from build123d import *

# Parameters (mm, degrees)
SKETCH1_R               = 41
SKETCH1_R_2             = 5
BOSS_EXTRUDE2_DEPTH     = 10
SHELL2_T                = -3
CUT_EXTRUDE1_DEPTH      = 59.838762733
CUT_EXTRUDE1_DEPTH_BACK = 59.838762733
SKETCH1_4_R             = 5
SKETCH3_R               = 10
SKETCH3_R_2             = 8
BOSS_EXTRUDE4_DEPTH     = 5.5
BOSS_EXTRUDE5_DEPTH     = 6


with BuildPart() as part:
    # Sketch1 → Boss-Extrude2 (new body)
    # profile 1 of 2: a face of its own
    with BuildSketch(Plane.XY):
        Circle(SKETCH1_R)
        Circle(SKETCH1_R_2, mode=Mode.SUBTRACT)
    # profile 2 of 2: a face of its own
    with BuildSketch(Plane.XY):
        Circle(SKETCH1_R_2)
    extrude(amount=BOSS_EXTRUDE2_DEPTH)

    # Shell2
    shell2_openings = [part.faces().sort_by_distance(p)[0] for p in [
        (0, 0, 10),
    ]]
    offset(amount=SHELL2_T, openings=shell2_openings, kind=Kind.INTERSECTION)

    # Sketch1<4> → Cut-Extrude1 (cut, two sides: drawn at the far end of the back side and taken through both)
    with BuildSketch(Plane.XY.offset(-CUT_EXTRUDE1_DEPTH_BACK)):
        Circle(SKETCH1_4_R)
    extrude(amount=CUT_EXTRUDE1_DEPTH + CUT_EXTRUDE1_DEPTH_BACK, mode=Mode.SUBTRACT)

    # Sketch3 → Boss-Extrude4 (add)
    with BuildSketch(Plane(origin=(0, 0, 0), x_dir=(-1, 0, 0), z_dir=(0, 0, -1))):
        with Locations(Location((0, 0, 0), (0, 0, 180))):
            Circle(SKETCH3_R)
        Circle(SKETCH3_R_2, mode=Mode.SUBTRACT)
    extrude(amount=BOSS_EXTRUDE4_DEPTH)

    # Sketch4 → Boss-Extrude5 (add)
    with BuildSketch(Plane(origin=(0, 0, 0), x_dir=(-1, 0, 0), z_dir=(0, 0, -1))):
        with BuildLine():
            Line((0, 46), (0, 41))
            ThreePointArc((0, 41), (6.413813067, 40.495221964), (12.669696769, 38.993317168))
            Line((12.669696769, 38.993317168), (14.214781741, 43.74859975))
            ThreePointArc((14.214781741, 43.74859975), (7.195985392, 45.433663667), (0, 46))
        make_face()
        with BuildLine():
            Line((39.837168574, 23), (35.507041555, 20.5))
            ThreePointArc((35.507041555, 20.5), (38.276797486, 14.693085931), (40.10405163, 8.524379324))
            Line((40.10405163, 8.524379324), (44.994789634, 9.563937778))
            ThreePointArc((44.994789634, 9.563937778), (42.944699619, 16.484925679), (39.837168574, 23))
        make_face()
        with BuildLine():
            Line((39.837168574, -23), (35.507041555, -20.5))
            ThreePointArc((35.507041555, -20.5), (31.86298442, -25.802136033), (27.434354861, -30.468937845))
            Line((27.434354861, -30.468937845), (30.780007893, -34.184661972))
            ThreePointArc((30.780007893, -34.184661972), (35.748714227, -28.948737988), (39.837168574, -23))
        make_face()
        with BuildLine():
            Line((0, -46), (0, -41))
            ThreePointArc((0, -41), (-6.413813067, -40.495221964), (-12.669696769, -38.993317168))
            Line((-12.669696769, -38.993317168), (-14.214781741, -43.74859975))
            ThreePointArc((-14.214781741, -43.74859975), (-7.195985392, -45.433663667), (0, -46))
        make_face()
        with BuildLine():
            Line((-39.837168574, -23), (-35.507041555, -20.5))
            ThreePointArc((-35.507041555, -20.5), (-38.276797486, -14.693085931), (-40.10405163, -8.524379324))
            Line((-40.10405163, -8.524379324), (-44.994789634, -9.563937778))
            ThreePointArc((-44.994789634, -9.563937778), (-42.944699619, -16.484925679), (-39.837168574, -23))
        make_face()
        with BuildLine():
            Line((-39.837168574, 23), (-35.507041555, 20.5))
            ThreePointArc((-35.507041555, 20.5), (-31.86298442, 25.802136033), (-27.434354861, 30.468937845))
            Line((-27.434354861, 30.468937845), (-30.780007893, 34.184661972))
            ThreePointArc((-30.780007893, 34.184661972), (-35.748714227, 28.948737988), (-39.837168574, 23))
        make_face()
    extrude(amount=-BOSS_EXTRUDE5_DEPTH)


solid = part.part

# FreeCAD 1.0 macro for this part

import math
import FreeCAD as App
import Part
import Sketcher
from FreeCAD import Vector
Q = App.Units.Quantity


def faces_at(feature, points):
    """Names of the faces that lie closest to the given points."""
    faces = feature.Shape.Faces
    near = lambda p: min(range(len(faces)), key=lambda i: faces[i].distToShape(Part.Vertex(*p))[0])
    return sorted({f"Face{near(p) + 1}" for p in points})

doc = App.newDocument("Part")
body = doc.addObject("PartDesign::Body", "Body")

sketch1 = doc.addObject("Sketcher::SketchObject", "Sketch")
body.addObject(sketch1)
sketch1.AttachmentSupport = (doc.XY_Plane, [""])
sketch1.MapMode = "FlatFace"
sketch1.addGeometry(Part.Circle(Vector(0, 0, 0), Vector(0, 0, 1), 41), False)
sketch1.addConstraint(Sketcher.Constraint("Coincident", 0, 3, -1, 1))
sketch1.addConstraint(Sketcher.Constraint("Diameter", 0, Q("82 mm")))
pad1 = doc.addObject("PartDesign::Pad", "Pad")
body.addObject(pad1)
pad1.Profile = sketch1
pad1.Length = 10
doc.recompute()

thickness = doc.addObject("PartDesign::Thickness", "Thickness")
body.addObject(thickness)
thickness.Base = (pad1, faces_at(pad1, [(0, 0, 10)]))
thickness.Value = 3
thickness.Reversed = True
thickness.Join = "Intersection"

sketch2 = doc.addObject("Sketcher::SketchObject", "Sketch001")
body.addObject(sketch2)
sketch2.AttachmentSupport = (doc.XY_Plane, [""])
sketch2.MapMode = "FlatFace"
sketch2.addGeometry(Part.Circle(Vector(0, 0, 0), Vector(0, 0, 1), 5), False)
sketch2.addConstraint(Sketcher.Constraint("Coincident", 0, 3, -1, 1))
sketch2.addConstraint(Sketcher.Constraint("Diameter", 0, Q("10 mm")))
pocket1 = doc.addObject("PartDesign::Pocket", "Pocket")
body.addObject(pocket1)
pocket1.Profile = sketch2
pocket1.Type = "ThroughAll"
pocket1.Midplane = True

sketch3 = doc.addObject("Sketcher::SketchObject", "Sketch002")
body.addObject(sketch3)
sketch3.AttachmentSupport = (doc.XY_Plane, [""])
sketch3.MapMode = "FlatFace"
sketch3.addGeometry(Part.Circle(Vector(0, 0, 0), Vector(0, 0, 1), 10), False)
sketch3.addGeometry(Part.Circle(Vector(0, 0, 0), Vector(0, 0, 1), 8), False)
sketch3.addConstraint(Sketcher.Constraint("Coincident", 0, 3, -1, 1))
sketch3.addConstraint(Sketcher.Constraint("Coincident", 1, 3, -1, 1))
sketch3.addConstraint(Sketcher.Constraint("Diameter", 0, Q("20 mm")))
sketch3.addConstraint(Sketcher.Constraint("Diameter", 1, Q("16 mm")))
pad2 = doc.addObject("PartDesign::Pad", "Pad001")
body.addObject(pad2)
pad2.Profile = sketch3
pad2.Length = 5.5
pad2.Reversed = True

sketch4 = doc.addObject("Sketcher::SketchObject", "Sketch003")
body.addObject(sketch4)
sketch4.AttachmentSupport = (doc.XY_Plane, [""])
sketch4.MapMode = "FlatFace"
sketch4.addGeometry(Part.LineSegment(Vector(0, 46, 0), Vector(0, 41, 0)), False)
sketch4.addGeometry(Part.ArcOfCircle(Part.Circle(Vector(0, 0, 0), Vector(0, 0, 1), 41), math.radians(90), math.radians(108)), False)
sketch4.addGeometry(Part.LineSegment(Vector(-12.669697, 38.993317, 0), Vector(-14.214782, 43.7486, 0)), False)
sketch4.addGeometry(Part.ArcOfCircle(Part.Circle(Vector(0, 0, 0), Vector(0, 0, 1), 46), math.radians(90), math.radians(108)), False)
sketch4.addGeometry(Part.LineSegment(Vector(-39.837169, 23, 0), Vector(-35.507042, 20.5, 0)), False)
sketch4.addGeometry(Part.ArcOfCircle(Part.Circle(Vector(0, 0, 0), Vector(0, 0, 1), 41), math.radians(150), math.radians(168)), False)
sketch4.addGeometry(Part.LineSegment(Vector(-40.104052, 8.524379, 0), Vector(-44.99479, 9.563938, 0)), False)
sketch4.addGeometry(Part.ArcOfCircle(Part.Circle(Vector(0, 0, 0), Vector(0, 0, 1), 46), math.radians(150), math.radians(168)), False)
sketch4.addGeometry(Part.LineSegment(Vector(-39.837169, -23, 0), Vector(-35.507042, -20.5, 0)), False)
sketch4.addGeometry(Part.ArcOfCircle(Part.Circle(Vector(0, 0, 0), Vector(0, 0, 1), 41), math.radians(-150), math.radians(-132)), False)
sketch4.addGeometry(Part.LineSegment(Vector(-27.434355, -30.468938, 0), Vector(-30.780008, -34.184662, 0)), False)
sketch4.addGeometry(Part.ArcOfCircle(Part.Circle(Vector(0, 0, 0), Vector(0, 0, 1), 46), math.radians(-150), math.radians(-132)), False)
sketch4.addGeometry(Part.LineSegment(Vector(0, -46, 0), Vector(0, -41, 0)), False)
sketch4.addGeometry(Part.ArcOfCircle(Part.Circle(Vector(0, 0, 0), Vector(0, 0, 1), 41), math.radians(-90), math.radians(-72)), False)
sketch4.addGeometry(Part.LineSegment(Vector(12.669697, -38.993317, 0), Vector(14.214782, -43.7486, 0)), False)
sketch4.addGeometry(Part.ArcOfCircle(Part.Circle(Vector(0, 0, 0), Vector(0, 0, 1), 46), math.radians(-90), math.radians(-72)), False)
sketch4.addGeometry(Part.LineSegment(Vector(39.837169, -23, 0), Vector(35.507042, -20.5, 0)), False)
sketch4.addGeometry(Part.ArcOfCircle(Part.Circle(Vector(0, 0, 0), Vector(0, 0, 1), 41), math.radians(-30), math.radians(-12)), False)
sketch4.addGeometry(Part.LineSegment(Vector(40.104052, -8.524379, 0), Vector(44.99479, -9.563938, 0)), False)
sketch4.addGeometry(Part.ArcOfCircle(Part.Circle(Vector(0, 0, 0), Vector(0, 0, 1), 46), math.radians(-30), math.radians(-12)), False)
sketch4.addGeometry(Part.LineSegment(Vector(39.837169, 23, 0), Vector(35.507042, 20.5, 0)), False)
sketch4.addGeometry(Part.ArcOfCircle(Part.Circle(Vector(0, 0, 0), Vector(0, 0, 1), 41), math.radians(30), math.radians(48)), False)
sketch4.addGeometry(Part.LineSegment(Vector(27.434355, 30.468938, 0), Vector(30.780008, 34.184662, 0)), False)
sketch4.addGeometry(Part.ArcOfCircle(Part.Circle(Vector(0, 0, 0), Vector(0, 0, 1), 46), math.radians(30), math.radians(48)), False)
sketch4.addConstraint(Sketcher.Constraint("Coincident", 0, 2, 1, 1))
sketch4.addConstraint(Sketcher.Constraint("Coincident", 1, 2, 2, 1))
sketch4.addConstraint(Sketcher.Constraint("Coincident", 2, 2, 3, 2))
sketch4.addConstraint(Sketcher.Constraint("Coincident", 3, 1, 0, 1))
sketch4.addConstraint(Sketcher.Constraint("Coincident", 4, 2, 5, 1))
sketch4.addConstraint(Sketcher.Constraint("Coincident", 5, 2, 6, 1))
sketch4.addConstraint(Sketcher.Constraint("Coincident", 6, 2, 7, 2))
sketch4.addConstraint(Sketcher.Constraint("Coincident", 7, 1, 4, 1))
sketch4.addConstraint(Sketcher.Constraint("Coincident", 8, 2, 9, 1))
sketch4.addConstraint(Sketcher.Constraint("Coincident", 9, 2, 10, 1))
sketch4.addConstraint(Sketcher.Constraint("Coincident", 10, 2, 11, 2))
sketch4.addConstraint(Sketcher.Constraint("Coincident", 11, 1, 8, 1))
sketch4.addConstraint(Sketcher.Constraint("Coincident", 12, 2, 13, 1))
sketch4.addConstraint(Sketcher.Constraint("Coincident", 13, 2, 14, 1))
sketch4.addConstraint(Sketcher.Constraint("Coincident", 14, 2, 15, 2))
sketch4.addConstraint(Sketcher.Constraint("Coincident", 15, 1, 12, 1))
sketch4.addConstraint(Sketcher.Constraint("Coincident", 16, 2, 17, 1))
sketch4.addConstraint(Sketcher.Constraint("Coincident", 17, 2, 18, 1))
sketch4.addConstraint(Sketcher.Constraint("Coincident", 18, 2, 19, 2))
sketch4.addConstraint(Sketcher.Constraint("Coincident", 19, 1, 16, 1))
sketch4.addConstraint(Sketcher.Constraint("Coincident", 20, 2, 21, 1))
sketch4.addConstraint(Sketcher.Constraint("Coincident", 21, 2, 22, 1))
sketch4.addConstraint(Sketcher.Constraint("Coincident", 22, 2, 23, 2))
sketch4.addConstraint(Sketcher.Constraint("Coincident", 23, 1, 20, 1))
sketch4.addConstraint(Sketcher.Constraint("Vertical", 0))
sketch4.addConstraint(Sketcher.Constraint("Vertical", 12))
sketch4.addConstraint(Sketcher.Constraint("Coincident", 1, 3, -1, 1))
sketch4.addConstraint(Sketcher.Constraint("Coincident", 3, 3, -1, 1))
sketch4.addConstraint(Sketcher.Constraint("Coincident", 5, 3, -1, 1))
sketch4.addConstraint(Sketcher.Constraint("Coincident", 7, 3, -1, 1))
sketch4.addConstraint(Sketcher.Constraint("Coincident", 9, 3, -1, 1))
sketch4.addConstraint(Sketcher.Constraint("Coincident", 11, 3, -1, 1))
sketch4.addConstraint(Sketcher.Constraint("Coincident", 13, 3, -1, 1))
sketch4.addConstraint(Sketcher.Constraint("Coincident", 15, 3, -1, 1))
sketch4.addConstraint(Sketcher.Constraint("Coincident", 17, 3, -1, 1))
sketch4.addConstraint(Sketcher.Constraint("Coincident", 19, 3, -1, 1))
sketch4.addConstraint(Sketcher.Constraint("Coincident", 21, 3, -1, 1))
sketch4.addConstraint(Sketcher.Constraint("Coincident", 23, 3, -1, 1))
sketch4.addConstraint(Sketcher.Constraint("Equal", 1, 5))
sketch4.addConstraint(Sketcher.Constraint("Equal", 3, 7))
sketch4.addConstraint(Sketcher.Constraint("Equal", 5, 9))
sketch4.addConstraint(Sketcher.Constraint("Equal", 7, 11))
sketch4.addConstraint(Sketcher.Constraint("Equal", 9, 13))
sketch4.addConstraint(Sketcher.Constraint("Equal", 11, 15))
sketch4.addConstraint(Sketcher.Constraint("Equal", 13, 17))
sketch4.addConstraint(Sketcher.Constraint("Equal", 15, 19))
sketch4.addConstraint(Sketcher.Constraint("Equal", 17, 21))
sketch4.addConstraint(Sketcher.Constraint("Equal", 19, 23))
sketch4.addConstraint(Sketcher.Constraint("PointOnObject", 0, 2, -2))
sketch4.addConstraint(Sketcher.Constraint("PointOnObject", 12, 2, -2))
sketch4.addConstraint(Sketcher.Constraint("Parallel", 2, 14))
sketch4.addConstraint(Sketcher.Constraint("Parallel", 4, 16))
sketch4.addConstraint(Sketcher.Constraint("Parallel", 6, 18))
sketch4.addConstraint(Sketcher.Constraint("Parallel", 8, 20))
sketch4.addConstraint(Sketcher.Constraint("Parallel", 10, 22))
sketch4.addConstraint(Sketcher.Constraint("Horizontal", 8, 2, 16, 2))
sketch4.addConstraint(Sketcher.Constraint("Horizontal", 11, 1, 19, 1))
sketch4.addConstraint(Sketcher.Constraint("Horizontal", 4, 2, 20, 2))
sketch4.addConstraint(Sketcher.Constraint("Vertical", 4, 2, 8, 2))
sketch4.addConstraint(Sketcher.Constraint("Radius", 1, Q("41 mm")))
sketch4.addConstraint(Sketcher.Constraint("Radius", 3, Q("46 mm")))
sketch4.addConstraint(Sketcher.Constraint("Angle", 2, Q("108 deg")))
sketch4.addConstraint(Sketcher.Constraint("Angle", 4, Q("-30 deg")))
sketch4.addConstraint(Sketcher.Constraint("Angle", 6, Q("168 deg")))
sketch4.addConstraint(Sketcher.Constraint("Angle", 10, Q("-132 deg")))
sketch4.addConstraint(Sketcher.Constraint("DistanceY", -1, 1, 7, 1, Q("23 mm")))
sketch4.addConstraint(Sketcher.Constraint("DistanceY", -1, 1, 2, 2, Q("43.7486 mm")))
sketch4.addConstraint(Sketcher.Constraint("DistanceY", 14, 2, -1, 1, Q("43.7486 mm")))
sketch4.addConstraint(Sketcher.Constraint("DistanceX", 5, 2, -1, 1, Q("40.104052 mm")))
sketch4.addConstraint(Sketcher.Constraint("DistanceY", 10, 2, -1, 1, Q("34.184662 mm")))
sketch4.addConstraint(Sketcher.Constraint("DistanceX", -1, 1, 17, 2, Q("40.104052 mm")))
sketch4.addConstraint(Sketcher.Constraint("DistanceY", -1, 1, 22, 2, Q("34.184662 mm")))
pad3 = doc.addObject("PartDesign::Pad", "Pad002")
body.addObject(pad3)
pad3.Profile = sketch4
pad3.Length = 6

doc.recompute()
